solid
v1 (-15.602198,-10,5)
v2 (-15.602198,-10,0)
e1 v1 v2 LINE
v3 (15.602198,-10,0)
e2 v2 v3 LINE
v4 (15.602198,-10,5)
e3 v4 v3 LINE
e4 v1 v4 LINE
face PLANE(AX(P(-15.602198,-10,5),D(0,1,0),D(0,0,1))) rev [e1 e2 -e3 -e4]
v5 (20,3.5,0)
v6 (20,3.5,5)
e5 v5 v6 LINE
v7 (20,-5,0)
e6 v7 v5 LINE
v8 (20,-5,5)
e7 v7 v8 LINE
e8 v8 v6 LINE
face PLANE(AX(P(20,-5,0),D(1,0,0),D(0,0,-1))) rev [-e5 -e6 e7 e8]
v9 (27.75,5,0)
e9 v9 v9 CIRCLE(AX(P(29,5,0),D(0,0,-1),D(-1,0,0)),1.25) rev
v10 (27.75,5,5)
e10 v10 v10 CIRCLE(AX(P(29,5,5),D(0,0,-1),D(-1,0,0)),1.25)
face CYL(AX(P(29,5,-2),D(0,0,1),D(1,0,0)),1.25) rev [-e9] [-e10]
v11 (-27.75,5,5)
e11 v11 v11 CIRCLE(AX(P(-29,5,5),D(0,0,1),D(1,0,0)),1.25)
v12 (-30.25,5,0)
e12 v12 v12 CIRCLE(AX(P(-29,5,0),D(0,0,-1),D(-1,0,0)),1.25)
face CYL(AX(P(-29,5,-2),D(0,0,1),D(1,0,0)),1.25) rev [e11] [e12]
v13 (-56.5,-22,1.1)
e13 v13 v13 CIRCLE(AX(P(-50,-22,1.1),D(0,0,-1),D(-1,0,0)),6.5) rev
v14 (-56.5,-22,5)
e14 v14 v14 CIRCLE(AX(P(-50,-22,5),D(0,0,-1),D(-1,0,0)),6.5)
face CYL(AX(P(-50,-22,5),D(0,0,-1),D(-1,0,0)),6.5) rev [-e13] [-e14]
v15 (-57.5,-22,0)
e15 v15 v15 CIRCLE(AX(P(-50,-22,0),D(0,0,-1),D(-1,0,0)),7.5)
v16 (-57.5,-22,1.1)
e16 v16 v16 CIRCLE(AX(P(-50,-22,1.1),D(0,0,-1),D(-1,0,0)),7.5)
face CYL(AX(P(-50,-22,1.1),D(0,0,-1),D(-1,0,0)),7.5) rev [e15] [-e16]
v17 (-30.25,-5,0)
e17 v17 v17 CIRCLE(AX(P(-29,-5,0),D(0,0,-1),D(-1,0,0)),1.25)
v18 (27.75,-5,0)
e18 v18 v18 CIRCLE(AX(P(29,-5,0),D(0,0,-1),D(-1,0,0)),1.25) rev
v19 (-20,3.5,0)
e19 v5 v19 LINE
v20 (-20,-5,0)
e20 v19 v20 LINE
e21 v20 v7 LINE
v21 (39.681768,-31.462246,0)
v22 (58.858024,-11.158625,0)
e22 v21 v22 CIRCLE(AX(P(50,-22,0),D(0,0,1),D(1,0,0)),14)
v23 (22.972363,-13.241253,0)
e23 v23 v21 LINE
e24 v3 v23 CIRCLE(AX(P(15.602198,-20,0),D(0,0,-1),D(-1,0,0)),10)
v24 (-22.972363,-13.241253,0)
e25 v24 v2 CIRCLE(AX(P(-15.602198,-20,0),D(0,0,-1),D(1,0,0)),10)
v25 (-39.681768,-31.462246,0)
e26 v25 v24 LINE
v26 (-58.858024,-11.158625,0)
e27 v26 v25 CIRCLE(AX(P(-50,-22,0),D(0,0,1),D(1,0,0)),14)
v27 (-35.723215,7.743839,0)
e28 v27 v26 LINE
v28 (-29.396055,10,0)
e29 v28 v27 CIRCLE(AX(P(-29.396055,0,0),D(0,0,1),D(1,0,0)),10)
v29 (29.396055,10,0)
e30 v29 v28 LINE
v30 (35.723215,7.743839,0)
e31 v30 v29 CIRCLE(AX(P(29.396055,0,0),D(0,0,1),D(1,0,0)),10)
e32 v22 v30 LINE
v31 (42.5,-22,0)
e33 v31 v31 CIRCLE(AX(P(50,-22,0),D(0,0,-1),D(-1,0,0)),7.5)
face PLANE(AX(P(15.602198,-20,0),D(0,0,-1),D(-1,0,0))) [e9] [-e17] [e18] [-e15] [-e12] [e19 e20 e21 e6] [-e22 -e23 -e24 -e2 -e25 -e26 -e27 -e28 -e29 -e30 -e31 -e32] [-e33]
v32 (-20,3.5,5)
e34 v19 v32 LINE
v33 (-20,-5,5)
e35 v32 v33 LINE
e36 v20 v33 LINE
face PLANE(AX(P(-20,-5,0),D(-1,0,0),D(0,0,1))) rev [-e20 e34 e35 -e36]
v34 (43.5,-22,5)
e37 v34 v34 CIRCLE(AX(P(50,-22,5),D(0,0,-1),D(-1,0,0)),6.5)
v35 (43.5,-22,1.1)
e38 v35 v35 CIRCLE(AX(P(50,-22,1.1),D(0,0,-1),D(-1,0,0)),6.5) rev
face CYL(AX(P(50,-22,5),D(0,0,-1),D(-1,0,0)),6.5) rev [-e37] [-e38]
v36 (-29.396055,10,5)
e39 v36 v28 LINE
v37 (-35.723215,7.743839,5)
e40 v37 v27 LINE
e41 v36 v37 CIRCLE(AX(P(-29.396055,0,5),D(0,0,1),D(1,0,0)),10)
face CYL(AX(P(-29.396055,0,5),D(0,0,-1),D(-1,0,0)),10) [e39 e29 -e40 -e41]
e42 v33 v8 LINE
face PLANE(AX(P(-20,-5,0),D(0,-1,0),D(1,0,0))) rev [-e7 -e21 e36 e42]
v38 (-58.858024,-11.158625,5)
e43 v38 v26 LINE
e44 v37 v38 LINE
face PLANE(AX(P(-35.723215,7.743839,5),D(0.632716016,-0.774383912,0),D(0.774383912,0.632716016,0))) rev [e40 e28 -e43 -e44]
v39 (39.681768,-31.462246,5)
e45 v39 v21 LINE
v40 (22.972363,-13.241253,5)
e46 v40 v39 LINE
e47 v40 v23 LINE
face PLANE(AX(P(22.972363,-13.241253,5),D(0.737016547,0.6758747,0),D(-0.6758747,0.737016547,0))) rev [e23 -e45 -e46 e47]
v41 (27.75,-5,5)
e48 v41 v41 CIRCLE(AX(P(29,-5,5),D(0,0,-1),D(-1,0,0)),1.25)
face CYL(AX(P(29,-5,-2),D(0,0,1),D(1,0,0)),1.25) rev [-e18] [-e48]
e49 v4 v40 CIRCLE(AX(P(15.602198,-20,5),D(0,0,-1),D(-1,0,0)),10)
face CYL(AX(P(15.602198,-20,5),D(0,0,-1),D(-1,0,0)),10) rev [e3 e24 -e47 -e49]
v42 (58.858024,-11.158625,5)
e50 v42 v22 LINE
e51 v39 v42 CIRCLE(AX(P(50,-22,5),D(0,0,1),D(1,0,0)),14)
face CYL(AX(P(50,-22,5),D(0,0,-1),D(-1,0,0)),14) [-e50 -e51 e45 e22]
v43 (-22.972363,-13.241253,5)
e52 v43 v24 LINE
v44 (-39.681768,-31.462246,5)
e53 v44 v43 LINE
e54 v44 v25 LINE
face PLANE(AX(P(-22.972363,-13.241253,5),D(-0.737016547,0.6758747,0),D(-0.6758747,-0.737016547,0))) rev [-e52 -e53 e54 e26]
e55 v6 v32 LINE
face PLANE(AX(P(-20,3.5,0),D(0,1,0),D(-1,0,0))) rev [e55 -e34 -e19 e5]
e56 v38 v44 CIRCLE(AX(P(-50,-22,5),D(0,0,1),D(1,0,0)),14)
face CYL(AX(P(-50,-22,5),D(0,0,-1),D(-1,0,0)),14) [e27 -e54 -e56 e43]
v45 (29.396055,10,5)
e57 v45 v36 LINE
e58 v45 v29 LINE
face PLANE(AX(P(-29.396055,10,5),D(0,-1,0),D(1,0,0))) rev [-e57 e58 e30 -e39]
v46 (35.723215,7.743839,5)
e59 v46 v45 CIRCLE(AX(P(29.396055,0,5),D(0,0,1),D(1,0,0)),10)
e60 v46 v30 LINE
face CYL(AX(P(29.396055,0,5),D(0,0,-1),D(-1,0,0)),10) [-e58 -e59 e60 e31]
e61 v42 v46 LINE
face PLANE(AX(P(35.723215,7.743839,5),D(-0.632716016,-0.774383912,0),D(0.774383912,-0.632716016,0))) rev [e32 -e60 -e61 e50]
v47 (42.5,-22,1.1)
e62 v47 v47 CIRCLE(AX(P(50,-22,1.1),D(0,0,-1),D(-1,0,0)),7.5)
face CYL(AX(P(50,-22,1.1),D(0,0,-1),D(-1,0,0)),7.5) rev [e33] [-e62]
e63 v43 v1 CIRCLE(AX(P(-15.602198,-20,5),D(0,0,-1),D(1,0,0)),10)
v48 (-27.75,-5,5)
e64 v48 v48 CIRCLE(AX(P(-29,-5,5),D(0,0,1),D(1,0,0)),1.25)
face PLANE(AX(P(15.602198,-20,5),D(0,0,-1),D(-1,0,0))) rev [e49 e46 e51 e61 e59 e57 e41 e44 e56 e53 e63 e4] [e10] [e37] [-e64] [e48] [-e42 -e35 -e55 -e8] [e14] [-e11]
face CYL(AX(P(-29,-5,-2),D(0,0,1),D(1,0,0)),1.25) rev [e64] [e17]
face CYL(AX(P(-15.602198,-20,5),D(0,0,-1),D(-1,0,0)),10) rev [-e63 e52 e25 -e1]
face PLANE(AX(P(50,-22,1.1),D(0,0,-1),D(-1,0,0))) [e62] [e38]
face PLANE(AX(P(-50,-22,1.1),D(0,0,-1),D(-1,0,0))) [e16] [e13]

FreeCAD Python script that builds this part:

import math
import FreeCAD as App
import Part
import Sketcher
from FreeCAD import Vector
Q = App.Units.Quantity

doc = App.newDocument("Part")
body = doc.addObject("PartDesign::Body", "Body")

sketch1 = body.newObject("Sketcher::SketchObject", "Sketch")
sketch1.AttachmentSupport = (doc.getObject("XY_Plane"), [""])
sketch1.MapMode = "FlatFace"
sketch1.addGeometry(Part.LineSegment(Vector(-36, 8, 0), Vector(-59, -11, 0)), False)
sketch1.addGeometry(Part.ArcOfCircle(Part.Circle(Vector(-50, -22, 0), Vector(0, 0, 1), 14), math.radians(129), math.radians(317)), False)
sketch1.addGeometry(Part.LineSegment(Vector(-40, -31, 0), Vector(-23, -13, 0)), False)
sketch1.addGeometry(Part.ArcOfCircle(Part.Circle(Vector(-16, -20, 0), Vector(0, 0, 1), 10), math.radians(90), math.radians(137)), False)
sketch1.addGeometry(Part.LineSegment(Vector(-16, -10, 0), Vector(16, -10, 0)), False)
sketch1.addGeometry(Part.ArcOfCircle(Part.Circle(Vector(16, -20, 0), Vector(0, 0, 1), 10), math.radians(43), math.radians(90)), False)
sketch1.addGeometry(Part.LineSegment(Vector(23, -13, 0), Vector(40, -31, 0)), False)
sketch1.addGeometry(Part.ArcOfCircle(Part.Circle(Vector(50, -22, 0), Vector(0, 0, 1), 14), math.radians(-137), math.radians(51)), False)
sketch1.addGeometry(Part.LineSegment(Vector(59, -11, 0), Vector(36, 8, 0)), False)
sketch1.addGeometry(Part.ArcOfCircle(Part.Circle(Vector(29, 0, 0), Vector(0, 0, 1), 10), math.radians(51), math.radians(90)), False)
sketch1.addGeometry(Part.LineSegment(Vector(29, 10, 0), Vector(-29, 10, 0)), False)
sketch1.addGeometry(Part.ArcOfCircle(Part.Circle(Vector(-29, 0, 0), Vector(0, 0, 1), 10), math.radians(90), math.radians(129)), False)
sketch1.addConstraint(Sketcher.Constraint("Tangent", 0, 2, 1, 1))
sketch1.addConstraint(Sketcher.Constraint("Tangent", 1, 2, 2, 1))
sketch1.addConstraint(Sketcher.Constraint("Tangent", 2, 2, 3, 2))
sketch1.addConstraint(Sketcher.Constraint("Tangent", 3, 1, 4, 1))
sketch1.addConstraint(Sketcher.Constraint("Tangent", 4, 2, 5, 2))
sketch1.addConstraint(Sketcher.Constraint("Tangent", 5, 1, 6, 1))
sketch1.addConstraint(Sketcher.Constraint("Tangent", 6, 2, 7, 1))
sketch1.addConstraint(Sketcher.Constraint("Tangent", 7, 2, 8, 1))
sketch1.addConstraint(Sketcher.Constraint("Tangent", 8, 2, 9, 1))
sketch1.addConstraint(Sketcher.Constraint("Tangent", 9, 2, 10, 1))
sketch1.addConstraint(Sketcher.Constraint("Tangent", 10, 2, 11, 1))
sketch1.addConstraint(Sketcher.Constraint("Tangent", 11, 2, 0, 1))
sketch1.addConstraint(Sketcher.Constraint("Horizontal", 4))
sketch1.addConstraint(Sketcher.Constraint("Horizontal", 10))
sketch1.addConstraint(Sketcher.Constraint("Equal", 3, 5))
sketch1.addConstraint(Sketcher.Constraint("Equal", 1, 7))
sketch1.addConstraint(Sketcher.Constraint("Equal", 5, 9))
sketch1.addConstraint(Sketcher.Constraint("Equal", 9, 11))
sketch1.addConstraint(Sketcher.Constraint("Symmetric", 9, 3, 11, 3, -1, 1))
sketch1.addConstraint(Sketcher.Constraint("Symmetric", 1, 3, 7, 3, -2))
sketch1.addConstraint(Sketcher.Constraint("Horizontal", 2, 2, 5, 1))
sketch1.addConstraint(Sketcher.Constraint("Radius", 1, Q("14 mm")))
sketch1.addConstraint(Sketcher.Constraint("Radius", 3, Q("10 mm")))
sketch1.addConstraint(Sketcher.Constraint("DistanceX", 1, 3, -1, 1, Q("50 mm")))
sketch1.addConstraint(Sketcher.Constraint("DistanceY", 1, 3, -1, 1, Q("22 mm")))
sketch1.addConstraint(Sketcher.Constraint("DistanceY", 3, 3, -1, 1, Q("20 mm")))
sketch1.addConstraint(Sketcher.Constraint("DistanceX", 10, 2, 10, 1, Q("58.79211 mm")))
sketch1.addConstraint(Sketcher.Constraint("DistanceX", 4, 1, 4, 2, Q("31.204396 mm")))
pad1 = body.newObject("PartDesign::Pad", "Pad")
pad1.Profile = sketch1
pad1.Length = 5

sketch2 = body.newObject("Sketcher::SketchObject", "Sketch001")
sketch2.AttachmentSupport = (doc.getObject("XY_Plane"), [""])
sketch2.MapMode = "FlatFace"
sketch2.AttachmentOffset = App.Placement(Vector(0, 0, 5), App.Rotation())
sketch2.addGeometry(Part.LineSegment(Vector(-20, 4, 0), Vector(-20, -5, 0)), False)
sketch2.addGeometry(Part.LineSegment(Vector(-20, -5, 0), Vector(20, -5, 0)), False)
sketch2.addGeometry(Part.LineSegment(Vector(20, -5, 0), Vector(20, 4, 0)), False)
sketch2.addGeometry(Part.LineSegment(Vector(20, 4, 0), Vector(-20, 4, 0)), False)
sketch2.addConstraint(Sketcher.Constraint("Coincident", 0, 2, 1, 1))
sketch2.addConstraint(Sketcher.Constraint("Coincident", 1, 2, 2, 1))
sketch2.addConstraint(Sketcher.Constraint("Coincident", 2, 2, 3, 1))
sketch2.addConstraint(Sketcher.Constraint("Coincident", 3, 2, 0, 1))
sketch2.addConstraint(Sketcher.Constraint("Vertical", 0))
sketch2.addConstraint(Sketcher.Constraint("Horizontal", 1))
sketch2.addConstraint(Sketcher.Constraint("Vertical", 2))
sketch2.addConstraint(Sketcher.Constraint("Horizontal", 3))
sketch2.addConstraint(Sketcher.Constraint("DistanceX", 1, 1, 1, 2, Q("40 mm")))
sketch2.addConstraint(Sketcher.Constraint("DistanceY", 0, 2, 0, 1, Q("8.5 mm")))
sketch2.addConstraint(Sketcher.Constraint("DistanceX", 0, 2, -1, 1, Q("20 mm")))
sketch2.addConstraint(Sketcher.Constraint("DistanceY", 0, 2, -1, 1, Q("5 mm")))
pocket1 = body.newObject("PartDesign::Pocket", "Pocket")
pocket1.Profile = sketch2
pocket1.Length = 5

sketch3 = body.newObject("Sketcher::SketchObject", "Sketch002")
sketch3.AttachmentSupport = (doc.getObject("XY_Plane"), [""])
sketch3.MapMode = "FlatFace"
sketch3.AttachmentOffset = App.Placement(Vector(0, 0, 5), App.Rotation())
sketch3.addGeometry(Part.Circle(Vector(-29, -5, 0), Vector(0, 0, 1), 1.2), False)
sketch3.addGeometry(Part.Circle(Vector(-29, 5, 0), Vector(0, 0, 1), 1.2), False)
sketch3.addConstraint(Sketcher.Constraint("Equal", 0, 1))
sketch3.addConstraint(Sketcher.Constraint("Symmetric", 0, 3, 1, 3, -1))
sketch3.addConstraint(Sketcher.Constraint("Diameter", 0, Q("2.5 mm")))
sketch3.addConstraint(Sketcher.Constraint("DistanceX", 0, 3, -1, 1, Q("29 mm")))
sketch3.addConstraint(Sketcher.Constraint("DistanceY", 0, 3, -1, 1, Q("5 mm")))
pocket2 = body.newObject("PartDesign::Pocket", "Pocket001")
pocket2.Profile = sketch3
pocket2.Length = 7

sketch4 = body.newObject("Sketcher::SketchObject", "Sketch003")
sketch4.AttachmentSupport = (doc.getObject("XY_Plane"), [""])
sketch4.MapMode = "FlatFace"
sketch4.addGeometry(Part.Circle(Vector(50, -22, 0), Vector(0, 0, 1), 6), False)
sketch4.addGeometry(Part.Circle(Vector(-50, -22, 0), Vector(0, 0, 1), 6), False)
sketch4.addConstraint(Sketcher.Constraint("Equal", 0, 1))
sketch4.addConstraint(Sketcher.Constraint("Symmetric", 0, 3, 1, 3, -2))
sketch4.addConstraint(Sketcher.Constraint("Diameter", 0, Q("13 mm")))
sketch4.addConstraint(Sketcher.Constraint("DistanceX", -1, 1, 0, 3, Q("50 mm")))
sketch4.addConstraint(Sketcher.Constraint("DistanceY", 0, 3, -1, 1, Q("22 mm")))
pocket3 = body.newObject("PartDesign::Pocket", "Pocket002")
pocket3.Profile = sketch4
pocket3.Length = 5
pocket3.Reversed = True

sketch5 = body.newObject("Sketcher::SketchObject", "Sketch004")
sketch5.AttachmentSupport = (doc.getObject("XY_Plane"), [""])
sketch5.MapMode = "FlatFace"
sketch5.addGeometry(Part.Circle(Vector(50, -22, 0), Vector(0, 0, 1), 8), False)
sketch5.addGeometry(Part.Circle(Vector(-50, -22, 0), Vector(0, 0, 1), 8), False)
sketch5.addConstraint(Sketcher.Constraint("Equal", 0, 1))
sketch5.addConstraint(Sketcher.Constraint("Symmetric", 0, 3, 1, 3, -2))
sketch5.addConstraint(Sketcher.Constraint("Diameter", 0, Q("15 mm")))
sketch5.addConstraint(Sketcher.Constraint("DistanceX", -1, 1, 0, 3, Q("50 mm")))
sketch5.addConstraint(Sketcher.Constraint("DistanceY", 0, 3, -1, 1, Q("22 mm")))
pocket4 = body.newObject("PartDesign::Pocket", "Pocket003")
pocket4.Profile = sketch5
pocket4.Length = 1.1
pocket4.Reversed = True
doc.recompute()

mirrored = body.newObject("PartDesign::Mirrored", "Mirrored")
mirrored.Originals = [pocket2]
mirrored.MirrorPlane = (doc.getObject("YZ_Plane"), [""])
body.Tip = mirrored

doc.recompute()
